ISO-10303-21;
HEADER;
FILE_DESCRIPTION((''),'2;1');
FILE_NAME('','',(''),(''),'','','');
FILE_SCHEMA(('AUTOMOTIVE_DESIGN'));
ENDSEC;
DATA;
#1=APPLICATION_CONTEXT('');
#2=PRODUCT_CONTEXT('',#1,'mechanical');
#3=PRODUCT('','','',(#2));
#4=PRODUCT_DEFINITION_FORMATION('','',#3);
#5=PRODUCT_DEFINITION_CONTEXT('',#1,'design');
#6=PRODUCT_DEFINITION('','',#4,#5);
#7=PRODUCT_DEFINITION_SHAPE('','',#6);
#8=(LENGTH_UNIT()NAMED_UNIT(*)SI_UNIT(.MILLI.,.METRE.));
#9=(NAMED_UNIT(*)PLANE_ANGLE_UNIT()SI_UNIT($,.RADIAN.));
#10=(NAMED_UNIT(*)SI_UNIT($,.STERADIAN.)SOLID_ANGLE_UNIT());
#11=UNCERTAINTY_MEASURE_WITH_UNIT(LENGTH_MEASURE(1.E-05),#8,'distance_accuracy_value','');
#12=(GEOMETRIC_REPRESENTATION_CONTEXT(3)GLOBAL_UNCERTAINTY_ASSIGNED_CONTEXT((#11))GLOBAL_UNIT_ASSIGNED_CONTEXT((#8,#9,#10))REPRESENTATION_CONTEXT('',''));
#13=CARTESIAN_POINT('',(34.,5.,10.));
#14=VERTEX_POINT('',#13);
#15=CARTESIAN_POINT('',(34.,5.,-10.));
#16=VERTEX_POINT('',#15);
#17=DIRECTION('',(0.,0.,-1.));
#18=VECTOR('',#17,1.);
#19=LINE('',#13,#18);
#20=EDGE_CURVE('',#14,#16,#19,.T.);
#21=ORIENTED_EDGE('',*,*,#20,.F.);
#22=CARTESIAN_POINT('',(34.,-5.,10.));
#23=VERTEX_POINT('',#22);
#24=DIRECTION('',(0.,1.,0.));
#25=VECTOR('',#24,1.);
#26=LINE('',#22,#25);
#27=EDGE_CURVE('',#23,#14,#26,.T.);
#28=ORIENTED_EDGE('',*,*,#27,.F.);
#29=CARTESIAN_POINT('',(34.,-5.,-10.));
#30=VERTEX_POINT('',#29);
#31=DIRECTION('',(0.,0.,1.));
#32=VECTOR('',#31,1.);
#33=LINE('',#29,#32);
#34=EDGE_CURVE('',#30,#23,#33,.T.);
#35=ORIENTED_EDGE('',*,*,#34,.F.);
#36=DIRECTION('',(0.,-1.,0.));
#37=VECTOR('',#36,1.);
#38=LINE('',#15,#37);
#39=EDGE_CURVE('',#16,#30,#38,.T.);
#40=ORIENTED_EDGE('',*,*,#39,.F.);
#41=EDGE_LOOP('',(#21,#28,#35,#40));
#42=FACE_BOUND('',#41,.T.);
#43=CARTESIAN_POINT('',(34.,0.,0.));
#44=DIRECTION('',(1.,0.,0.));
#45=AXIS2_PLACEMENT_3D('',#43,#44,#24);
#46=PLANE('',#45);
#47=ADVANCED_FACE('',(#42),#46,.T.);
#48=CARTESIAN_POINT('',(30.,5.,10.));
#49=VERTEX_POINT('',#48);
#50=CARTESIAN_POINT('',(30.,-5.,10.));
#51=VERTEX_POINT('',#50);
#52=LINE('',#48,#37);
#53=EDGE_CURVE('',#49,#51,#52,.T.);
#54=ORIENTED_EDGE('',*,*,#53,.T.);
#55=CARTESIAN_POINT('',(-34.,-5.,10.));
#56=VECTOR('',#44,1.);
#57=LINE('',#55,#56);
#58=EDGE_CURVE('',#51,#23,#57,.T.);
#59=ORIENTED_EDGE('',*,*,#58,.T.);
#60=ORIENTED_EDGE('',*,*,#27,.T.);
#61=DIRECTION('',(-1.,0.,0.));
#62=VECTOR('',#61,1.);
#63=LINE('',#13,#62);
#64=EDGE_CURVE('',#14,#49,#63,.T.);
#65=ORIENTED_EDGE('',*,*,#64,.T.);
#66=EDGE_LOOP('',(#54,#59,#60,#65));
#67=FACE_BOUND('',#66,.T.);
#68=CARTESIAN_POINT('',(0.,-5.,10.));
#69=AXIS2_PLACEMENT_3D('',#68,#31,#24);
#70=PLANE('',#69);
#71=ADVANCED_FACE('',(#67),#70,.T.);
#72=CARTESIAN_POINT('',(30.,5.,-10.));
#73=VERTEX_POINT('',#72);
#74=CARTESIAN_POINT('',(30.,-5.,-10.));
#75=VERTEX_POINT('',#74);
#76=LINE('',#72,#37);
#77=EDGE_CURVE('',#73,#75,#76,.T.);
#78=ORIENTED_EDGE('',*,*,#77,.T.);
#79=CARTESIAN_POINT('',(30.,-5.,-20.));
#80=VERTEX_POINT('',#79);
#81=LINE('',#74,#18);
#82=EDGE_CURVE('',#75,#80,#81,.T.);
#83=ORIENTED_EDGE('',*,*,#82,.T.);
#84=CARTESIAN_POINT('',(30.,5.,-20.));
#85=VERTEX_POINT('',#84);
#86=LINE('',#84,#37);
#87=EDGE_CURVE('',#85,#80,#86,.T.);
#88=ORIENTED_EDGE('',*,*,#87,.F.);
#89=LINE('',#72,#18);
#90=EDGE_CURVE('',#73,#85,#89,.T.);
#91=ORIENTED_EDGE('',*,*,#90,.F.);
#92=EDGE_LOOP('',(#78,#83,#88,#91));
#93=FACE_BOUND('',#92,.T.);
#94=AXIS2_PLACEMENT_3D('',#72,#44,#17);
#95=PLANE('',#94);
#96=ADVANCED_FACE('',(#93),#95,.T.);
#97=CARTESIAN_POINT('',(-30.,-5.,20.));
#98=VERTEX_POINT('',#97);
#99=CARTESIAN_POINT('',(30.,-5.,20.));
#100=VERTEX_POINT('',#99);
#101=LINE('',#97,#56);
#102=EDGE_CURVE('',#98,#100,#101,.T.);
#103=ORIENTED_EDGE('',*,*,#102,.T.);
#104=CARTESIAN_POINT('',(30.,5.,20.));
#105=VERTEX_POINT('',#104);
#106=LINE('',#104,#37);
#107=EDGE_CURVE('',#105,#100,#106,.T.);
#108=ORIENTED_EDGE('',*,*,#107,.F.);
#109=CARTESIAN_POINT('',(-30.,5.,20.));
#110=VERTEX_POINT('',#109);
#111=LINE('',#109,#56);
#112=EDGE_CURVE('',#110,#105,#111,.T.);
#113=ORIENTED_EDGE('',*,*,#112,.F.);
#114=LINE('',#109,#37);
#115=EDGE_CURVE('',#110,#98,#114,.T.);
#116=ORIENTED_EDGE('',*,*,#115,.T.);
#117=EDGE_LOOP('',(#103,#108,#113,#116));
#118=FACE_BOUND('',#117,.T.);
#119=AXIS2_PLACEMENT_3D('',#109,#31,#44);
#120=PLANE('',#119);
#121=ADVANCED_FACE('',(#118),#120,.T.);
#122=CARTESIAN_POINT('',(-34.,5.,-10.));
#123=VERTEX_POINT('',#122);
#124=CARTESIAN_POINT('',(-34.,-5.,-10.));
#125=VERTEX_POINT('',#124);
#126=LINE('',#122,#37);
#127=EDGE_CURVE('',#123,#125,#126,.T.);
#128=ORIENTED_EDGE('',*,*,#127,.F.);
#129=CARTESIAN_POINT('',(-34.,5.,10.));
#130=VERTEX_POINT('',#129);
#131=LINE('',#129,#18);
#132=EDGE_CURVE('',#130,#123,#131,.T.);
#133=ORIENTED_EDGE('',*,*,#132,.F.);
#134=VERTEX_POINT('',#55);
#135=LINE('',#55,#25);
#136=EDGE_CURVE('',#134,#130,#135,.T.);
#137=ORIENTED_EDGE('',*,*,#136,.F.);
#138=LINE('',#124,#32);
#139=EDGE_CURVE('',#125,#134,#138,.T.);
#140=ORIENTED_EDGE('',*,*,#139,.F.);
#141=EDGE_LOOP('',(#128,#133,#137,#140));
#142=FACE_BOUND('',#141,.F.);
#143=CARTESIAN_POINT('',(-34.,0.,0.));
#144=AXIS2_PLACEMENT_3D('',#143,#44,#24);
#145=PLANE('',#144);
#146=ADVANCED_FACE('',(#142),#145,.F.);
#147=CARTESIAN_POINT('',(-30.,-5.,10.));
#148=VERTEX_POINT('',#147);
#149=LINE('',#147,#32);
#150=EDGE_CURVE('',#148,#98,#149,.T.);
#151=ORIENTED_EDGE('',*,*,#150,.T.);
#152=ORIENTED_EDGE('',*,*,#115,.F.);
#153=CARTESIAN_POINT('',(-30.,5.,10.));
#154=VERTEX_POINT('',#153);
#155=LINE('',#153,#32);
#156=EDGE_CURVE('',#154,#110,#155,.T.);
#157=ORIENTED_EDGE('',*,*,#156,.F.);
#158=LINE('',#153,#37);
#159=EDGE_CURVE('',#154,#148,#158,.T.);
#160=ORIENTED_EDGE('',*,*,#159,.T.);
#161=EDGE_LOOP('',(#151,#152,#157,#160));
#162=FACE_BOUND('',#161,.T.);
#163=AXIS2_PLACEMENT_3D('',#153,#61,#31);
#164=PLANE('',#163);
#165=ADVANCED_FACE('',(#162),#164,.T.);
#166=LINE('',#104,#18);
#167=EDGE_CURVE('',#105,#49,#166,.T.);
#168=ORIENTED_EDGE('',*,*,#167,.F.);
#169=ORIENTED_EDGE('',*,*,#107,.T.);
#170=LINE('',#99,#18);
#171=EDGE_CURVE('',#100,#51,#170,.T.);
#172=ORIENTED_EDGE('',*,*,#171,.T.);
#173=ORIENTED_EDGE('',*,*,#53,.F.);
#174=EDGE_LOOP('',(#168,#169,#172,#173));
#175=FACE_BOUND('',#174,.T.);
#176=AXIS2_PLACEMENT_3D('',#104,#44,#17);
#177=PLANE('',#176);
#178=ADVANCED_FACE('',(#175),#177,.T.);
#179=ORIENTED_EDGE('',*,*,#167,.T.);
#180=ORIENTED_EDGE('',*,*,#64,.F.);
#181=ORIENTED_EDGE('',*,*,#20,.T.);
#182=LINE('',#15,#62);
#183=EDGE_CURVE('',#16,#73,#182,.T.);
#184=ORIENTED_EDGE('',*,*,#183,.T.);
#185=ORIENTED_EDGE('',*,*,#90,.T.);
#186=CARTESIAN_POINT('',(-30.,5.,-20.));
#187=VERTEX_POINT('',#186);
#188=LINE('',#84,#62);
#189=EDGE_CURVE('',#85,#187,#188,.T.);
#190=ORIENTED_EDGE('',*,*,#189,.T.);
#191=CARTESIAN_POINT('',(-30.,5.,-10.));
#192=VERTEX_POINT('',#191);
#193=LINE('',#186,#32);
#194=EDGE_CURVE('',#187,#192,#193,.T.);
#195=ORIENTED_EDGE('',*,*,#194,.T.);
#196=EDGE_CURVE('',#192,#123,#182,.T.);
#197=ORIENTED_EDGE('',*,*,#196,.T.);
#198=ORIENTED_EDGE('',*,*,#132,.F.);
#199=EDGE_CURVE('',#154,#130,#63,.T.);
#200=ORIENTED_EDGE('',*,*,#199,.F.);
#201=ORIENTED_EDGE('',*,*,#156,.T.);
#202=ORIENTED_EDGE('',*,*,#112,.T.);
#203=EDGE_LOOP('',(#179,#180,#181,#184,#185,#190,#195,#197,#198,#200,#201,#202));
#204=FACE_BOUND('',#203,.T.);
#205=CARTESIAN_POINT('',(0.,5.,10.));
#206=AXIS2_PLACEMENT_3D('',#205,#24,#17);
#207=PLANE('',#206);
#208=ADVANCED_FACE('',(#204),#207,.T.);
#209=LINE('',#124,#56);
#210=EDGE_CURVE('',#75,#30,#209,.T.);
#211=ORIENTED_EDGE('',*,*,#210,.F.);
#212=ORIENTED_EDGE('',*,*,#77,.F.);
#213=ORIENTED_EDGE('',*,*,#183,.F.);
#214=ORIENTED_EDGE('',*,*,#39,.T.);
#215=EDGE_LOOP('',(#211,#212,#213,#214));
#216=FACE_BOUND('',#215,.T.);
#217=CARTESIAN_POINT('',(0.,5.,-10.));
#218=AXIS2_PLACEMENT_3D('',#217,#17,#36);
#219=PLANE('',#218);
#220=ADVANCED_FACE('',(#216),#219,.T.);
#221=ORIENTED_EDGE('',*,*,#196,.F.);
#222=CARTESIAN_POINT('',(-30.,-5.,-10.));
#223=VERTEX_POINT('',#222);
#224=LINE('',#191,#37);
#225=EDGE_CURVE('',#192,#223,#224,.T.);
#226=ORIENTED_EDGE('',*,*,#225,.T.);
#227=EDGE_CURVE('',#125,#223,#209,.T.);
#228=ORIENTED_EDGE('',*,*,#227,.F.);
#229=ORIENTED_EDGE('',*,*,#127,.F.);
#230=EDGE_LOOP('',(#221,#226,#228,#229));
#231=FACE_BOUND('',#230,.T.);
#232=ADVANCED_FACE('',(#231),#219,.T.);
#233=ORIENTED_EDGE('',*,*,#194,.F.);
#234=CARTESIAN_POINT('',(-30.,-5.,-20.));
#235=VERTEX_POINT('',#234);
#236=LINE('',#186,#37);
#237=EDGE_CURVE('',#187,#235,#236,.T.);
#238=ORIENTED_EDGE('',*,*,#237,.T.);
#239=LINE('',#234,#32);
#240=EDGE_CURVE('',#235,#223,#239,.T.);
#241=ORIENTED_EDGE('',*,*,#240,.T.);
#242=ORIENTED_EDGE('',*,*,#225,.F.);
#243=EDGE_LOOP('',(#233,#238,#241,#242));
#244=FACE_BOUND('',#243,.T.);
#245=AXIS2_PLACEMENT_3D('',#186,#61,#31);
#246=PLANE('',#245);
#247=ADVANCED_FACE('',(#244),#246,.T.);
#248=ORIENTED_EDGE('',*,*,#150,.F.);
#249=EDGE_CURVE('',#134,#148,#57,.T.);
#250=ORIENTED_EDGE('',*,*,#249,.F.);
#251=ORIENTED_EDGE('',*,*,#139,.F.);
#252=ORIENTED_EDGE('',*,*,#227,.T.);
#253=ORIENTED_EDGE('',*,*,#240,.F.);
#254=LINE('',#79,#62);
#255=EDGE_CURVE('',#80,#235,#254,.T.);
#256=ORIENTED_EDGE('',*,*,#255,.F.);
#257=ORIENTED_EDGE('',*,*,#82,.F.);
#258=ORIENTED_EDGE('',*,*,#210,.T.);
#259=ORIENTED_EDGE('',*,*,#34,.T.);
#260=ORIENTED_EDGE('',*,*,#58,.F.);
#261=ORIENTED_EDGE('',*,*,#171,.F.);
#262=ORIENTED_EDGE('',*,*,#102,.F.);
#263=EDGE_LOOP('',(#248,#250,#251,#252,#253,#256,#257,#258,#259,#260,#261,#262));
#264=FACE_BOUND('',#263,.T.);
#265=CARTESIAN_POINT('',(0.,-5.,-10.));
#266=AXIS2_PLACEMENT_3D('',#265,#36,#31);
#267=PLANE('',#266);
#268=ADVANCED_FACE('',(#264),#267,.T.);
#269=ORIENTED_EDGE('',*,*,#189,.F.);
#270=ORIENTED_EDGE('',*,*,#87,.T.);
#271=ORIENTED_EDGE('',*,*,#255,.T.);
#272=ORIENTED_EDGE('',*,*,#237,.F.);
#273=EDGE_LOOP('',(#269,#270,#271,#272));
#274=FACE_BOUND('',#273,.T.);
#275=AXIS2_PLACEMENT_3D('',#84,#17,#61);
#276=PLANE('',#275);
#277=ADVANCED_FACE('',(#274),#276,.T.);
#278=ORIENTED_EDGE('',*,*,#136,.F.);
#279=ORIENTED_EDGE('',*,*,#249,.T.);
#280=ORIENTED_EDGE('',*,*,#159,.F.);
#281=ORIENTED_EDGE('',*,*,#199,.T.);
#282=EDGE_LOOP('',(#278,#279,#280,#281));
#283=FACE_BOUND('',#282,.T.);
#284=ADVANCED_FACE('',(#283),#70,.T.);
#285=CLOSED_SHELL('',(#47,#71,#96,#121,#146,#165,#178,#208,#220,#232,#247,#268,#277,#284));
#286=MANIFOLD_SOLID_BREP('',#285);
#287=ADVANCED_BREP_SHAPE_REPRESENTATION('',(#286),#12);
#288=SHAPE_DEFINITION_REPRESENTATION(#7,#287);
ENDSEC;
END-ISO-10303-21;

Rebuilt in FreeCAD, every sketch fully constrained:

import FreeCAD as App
import Part
import Sketcher
Q = App.Units.Quantity

doc = App.newDocument("Part")
body = doc.addObject("PartDesign::Body", "Body")

sketch1 = body.newObject("Sketcher::SketchObject", "Sketch")
sketch1.AttachmentSupport = (doc.getObject("YZ_Plane"), [""])
sketch1.MapMode = "FlatFace"
sketch1.addGeometry(Part.LineSegment(App.Vector(5, 10, 0), App.Vector(-5, 10, 0)), False)
sketch1.addGeometry(Part.LineSegment(App.Vector(-5, 10, 0), App.Vector(-5, -10, 0)), False)
sketch1.addGeometry(Part.LineSegment(App.Vector(-5, -10, 0), App.Vector(5, -10, 0)), False)
sketch1.addGeometry(Part.LineSegment(App.Vector(5, -10, 0), App.Vector(5, 10, 0)), False)
sketch1.addConstraint(Sketcher.Constraint("Coincident", 0, 2, 1, 1))
sketch1.addConstraint(Sketcher.Constraint("Coincident", 1, 2, 2, 1))
sketch1.addConstraint(Sketcher.Constraint("Coincident", 2, 2, 3, 1))
sketch1.addConstraint(Sketcher.Constraint("Coincident", 3, 2, 0, 1))
sketch1.addConstraint(Sketcher.Constraint("Horizontal", 0))
sketch1.addConstraint(Sketcher.Constraint("Vertical", 1))
sketch1.addConstraint(Sketcher.Constraint("Horizontal", 2))
sketch1.addConstraint(Sketcher.Constraint("Vertical", 3))
sketch1.addConstraint(Sketcher.Constraint("Symmetric", 0, 2, 2, 2, -1, 1))
sketch1.addConstraint(Sketcher.Constraint("DistanceX", 0, 2, 0, 1, Q("10 mm")))
sketch1.addConstraint(Sketcher.Constraint("DistanceY", 1, 2, 1, 1, Q("20 mm")))
pad1 = body.newObject("PartDesign::Pad", "Pad")
pad1.Profile = sketch1
pad1.Length = 68
pad1.Midplane = True

sketch2 = body.newObject("Sketcher::SketchObject", "Sketch001")
sketch2.AttachmentSupport = (doc.getObject("XZ_Plane"), [""])
sketch2.MapMode = "FlatFace"
sketch2.AttachmentOffset = App.Placement(App.Vector(0, 0, -5), App.Rotation())
sketch2.addGeometry(Part.LineSegment(App.Vector(-30, -20, 0), App.Vector(-30, -10, 0)), False)
sketch2.addGeometry(Part.LineSegment(App.Vector(-30, -10, 0), App.Vector(30, -10, 0)), False)
sketch2.addGeometry(Part.LineSegment(App.Vector(30, -10, 0), App.Vector(30, -20, 0)), False)
sketch2.addGeometry(Part.LineSegment(App.Vector(30, -20, 0), App.Vector(-30, -20, 0)), False)
sketch2.addGeometry(Part.LineSegment(App.Vector(30, 10, 0), App.Vector(-30, 10, 0)), False)
sketch2.addGeometry(Part.LineSegment(App.Vector(-30, 10, 0), App.Vector(-30, 20, 0)), False)
sketch2.addGeometry(Part.LineSegment(App.Vector(-30, 20, 0), App.Vector(30, 20, 0)), False)
sketch2.addGeometry(Part.LineSegment(App.Vector(30, 20, 0), App.Vector(30, 10, 0)), False)
sketch2.addConstraint(Sketcher.Constraint("Coincident", 0, 2, 1, 1))
sketch2.addConstraint(Sketcher.Constraint("Coincident", 1, 2, 2, 1))
sketch2.addConstraint(Sketcher.Constraint("Coincident", 2, 2, 3, 1))
sketch2.addConstraint(Sketcher.Constraint("Coincident", 3, 2, 0, 1))
sketch2.addConstraint(Sketcher.Constraint("Coincident", 4, 2, 5, 1))
sketch2.addConstraint(Sketcher.Constraint("Coincident", 5, 2, 6, 1))
sketch2.addConstraint(Sketcher.Constraint("Coincident", 6, 2, 7, 1))
sketch2.addConstraint(Sketcher.Constraint("Coincident", 7, 2, 4, 1))
sketch2.addConstraint(Sketcher.Constraint("Vertical", 0))
sketch2.addConstraint(Sketcher.Constraint("Horizontal", 1))
sketch2.addConstraint(Sketcher.Constraint("Vertical", 2))
sketch2.addConstraint(Sketcher.Constraint("Horizontal", 3))
sketch2.addConstraint(Sketcher.Constraint("Horizontal", 4))
sketch2.addConstraint(Sketcher.Constraint("Vertical", 5))
sketch2.addConstraint(Sketcher.Constraint("Horizontal", 6))
sketch2.addConstraint(Sketcher.Constraint("Vertical", 7))
sketch2.addConstraint(Sketcher.Constraint("Symmetric", 1, 2, 4, 2, -1, 1))
sketch2.addConstraint(Sketcher.Constraint("Symmetric", 3, 2, 6, 2, -1, 1))
sketch2.addConstraint(Sketcher.Constraint("Vertical", 3, 2, 4, 2))
sketch2.addConstraint(Sketcher.Constraint("DistanceX", 1, 1, 1, 2, Q("60 mm")))
sketch2.addConstraint(Sketcher.Constraint("DistanceY", 0, 1, 0, 2, Q("10 mm")))
sketch2.addConstraint(Sketcher.Constraint("DistanceY", 0, 2, -1, 1, Q("10 mm")))
pad2 = body.newObject("PartDesign::Pad", "Pad001")
pad2.Profile = sketch2
pad2.Length = 10

doc.recompute()
